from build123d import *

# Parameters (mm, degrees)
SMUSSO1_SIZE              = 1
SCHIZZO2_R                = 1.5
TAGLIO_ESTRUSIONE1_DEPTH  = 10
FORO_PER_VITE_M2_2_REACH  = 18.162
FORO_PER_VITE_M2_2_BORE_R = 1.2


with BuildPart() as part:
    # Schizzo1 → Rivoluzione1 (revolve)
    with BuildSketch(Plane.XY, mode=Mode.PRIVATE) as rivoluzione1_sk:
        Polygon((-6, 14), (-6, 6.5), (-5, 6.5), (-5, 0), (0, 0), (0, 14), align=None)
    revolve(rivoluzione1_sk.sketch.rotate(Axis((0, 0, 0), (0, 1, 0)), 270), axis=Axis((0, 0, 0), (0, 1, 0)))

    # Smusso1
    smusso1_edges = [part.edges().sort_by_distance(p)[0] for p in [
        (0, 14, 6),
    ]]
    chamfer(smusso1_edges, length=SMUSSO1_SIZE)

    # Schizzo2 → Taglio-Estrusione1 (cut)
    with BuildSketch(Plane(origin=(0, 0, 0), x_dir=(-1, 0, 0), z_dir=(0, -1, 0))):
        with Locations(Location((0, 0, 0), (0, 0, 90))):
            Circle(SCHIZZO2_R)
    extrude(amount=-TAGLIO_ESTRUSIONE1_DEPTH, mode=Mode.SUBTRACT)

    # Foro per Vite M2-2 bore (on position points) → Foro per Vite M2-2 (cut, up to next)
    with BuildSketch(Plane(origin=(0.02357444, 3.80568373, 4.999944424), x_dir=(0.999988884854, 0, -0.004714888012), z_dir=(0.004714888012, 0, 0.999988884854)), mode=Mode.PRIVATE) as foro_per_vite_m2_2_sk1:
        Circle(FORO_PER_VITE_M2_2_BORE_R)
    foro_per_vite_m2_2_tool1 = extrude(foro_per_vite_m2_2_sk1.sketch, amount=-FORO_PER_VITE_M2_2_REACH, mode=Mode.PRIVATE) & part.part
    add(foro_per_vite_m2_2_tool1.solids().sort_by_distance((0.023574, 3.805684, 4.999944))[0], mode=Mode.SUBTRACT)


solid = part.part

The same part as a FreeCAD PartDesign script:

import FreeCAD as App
import Part
import Sketcher
from FreeCAD import Vector
Q = App.Units.Quantity


def edges_at(feature, points):
    """Names of the edges that pass closest to the given points."""
    edges = feature.Shape.Edges
    near = lambda p: min(range(len(edges)), key=lambda i: edges[i].distToShape(Part.Vertex(*p))[0])
    return sorted({f"Edge{near(p) + 1}" for p in points})


def add_polygon(sketch, points):
    """Adds a closed chain of lines whose ends are joined by coincident constraints."""
    first, n = sketch.GeometryCount, len(points)
    for a, b in zip(points, points[1:] + points[:1]):
        sketch.addGeometry(Part.LineSegment(App.Vector(*a, 0), App.Vector(*b, 0)), False)
    for i in range(n):
        sketch.addConstraint(Sketcher.Constraint("Coincident", first + i, 2, first + (i + 1) % n, 1))

doc = App.newDocument("Part")
body = doc.addObject("PartDesign::Body", "Body")

# Sketch on XY plane
sketch1 = doc.addObject("Sketcher::SketchObject", "Sketch")
body.addObject(sketch1)
sketch1.AttachmentSupport = (doc.XY_Plane, [""])
sketch1.MapMode = "FlatFace"
add_polygon(sketch1, [(-6, 14), (-6, 6.5), (-5, 6.5), (-5, 0), (0, 0), (0, 14)])  # lines 0-5
sketch1.addConstraint([
    Sketcher.Constraint("Vertical", 0),
    Sketcher.Constraint("Horizontal", 1),
    Sketcher.Constraint("Vertical", 2),
    Sketcher.Constraint("Horizontal", 3),
    Sketcher.Constraint("Vertical", 4),
    Sketcher.Constraint("Horizontal", 5),
    Sketcher.Constraint("Coincident", 3, 2, -1, 1),
    Sketcher.Constraint("DistanceX", 1, 1, 1, 2, Q("1 mm")),
    Sketcher.Constraint("DistanceX", 3, 1, 3, 2, Q("5 mm")),
    Sketcher.Constraint("DistanceY", 4, 1, 4, 2, Q("14 mm")),
    Sketcher.Constraint("DistanceY", 0, 2, 0, 1, Q("7.5 mm")),
])
revolution = doc.addObject("PartDesign::Revolution", "Revolution")
body.addObject(revolution)
revolution.Profile = sketch1
revolution.ReferenceAxis = (sketch1, ["V_Axis"])
revolution.Angle = 360
doc.recompute()

chamfer = doc.addObject("PartDesign::Chamfer", "Chamfer")
body.addObject(chamfer)
chamfer.Base = (revolution, edges_at(revolution, [(0, 14, 6)]))
chamfer.Size = 1

# Sketch on XZ plane
sketch2 = doc.addObject("Sketcher::SketchObject", "Sketch001")
body.addObject(sketch2)
sketch2.AttachmentSupport = (doc.XZ_Plane, [""])
sketch2.MapMode = "FlatFace"
sketch2.addGeometry(Part.Circle(Vector(0, 0, 0), Vector(0, 0, 1), 1.5), False)
sketch2.addConstraint([
    Sketcher.Constraint("Coincident", 0, 3, -1, 1),
    Sketcher.Constraint("Diameter", 0, Q("3 mm")),
])
pocket1 = doc.addObject("PartDesign::Pocket", "Pocket")
body.addObject(pocket1)
pocket1.Profile = sketch2
pocket1.Length = 10

# Sketch on an angled plane
sketch3 = doc.addObject("Sketcher::SketchObject", "Sketch002")
body.addObject(sketch3)
sketch3.Placement = App.Placement(Vector(0.023574, 3.805684, 4.999944), App.Rotation(Vector(0.999988885, 0, -0.004714888), Vector(0, 1, 0), Vector(0.004714888, 0, 0.999988885), "ZXY"))
sketch3.addGeometry(Part.Circle(Vector(0, 0, 0), Vector(0, 0, 1), 1.2), False)
sketch3.addConstraint([
    Sketcher.Constraint("Coincident", 0, 3, -1, 1),
    Sketcher.Constraint("Diameter", 0, Q("2.4 mm")),
])
pocket2 = doc.addObject("PartDesign::Pocket", "Pocket001")
body.addObject(pocket2)
pocket2.Profile = sketch3
pocket2.Type = "UpToFirst"

doc.recompute()
